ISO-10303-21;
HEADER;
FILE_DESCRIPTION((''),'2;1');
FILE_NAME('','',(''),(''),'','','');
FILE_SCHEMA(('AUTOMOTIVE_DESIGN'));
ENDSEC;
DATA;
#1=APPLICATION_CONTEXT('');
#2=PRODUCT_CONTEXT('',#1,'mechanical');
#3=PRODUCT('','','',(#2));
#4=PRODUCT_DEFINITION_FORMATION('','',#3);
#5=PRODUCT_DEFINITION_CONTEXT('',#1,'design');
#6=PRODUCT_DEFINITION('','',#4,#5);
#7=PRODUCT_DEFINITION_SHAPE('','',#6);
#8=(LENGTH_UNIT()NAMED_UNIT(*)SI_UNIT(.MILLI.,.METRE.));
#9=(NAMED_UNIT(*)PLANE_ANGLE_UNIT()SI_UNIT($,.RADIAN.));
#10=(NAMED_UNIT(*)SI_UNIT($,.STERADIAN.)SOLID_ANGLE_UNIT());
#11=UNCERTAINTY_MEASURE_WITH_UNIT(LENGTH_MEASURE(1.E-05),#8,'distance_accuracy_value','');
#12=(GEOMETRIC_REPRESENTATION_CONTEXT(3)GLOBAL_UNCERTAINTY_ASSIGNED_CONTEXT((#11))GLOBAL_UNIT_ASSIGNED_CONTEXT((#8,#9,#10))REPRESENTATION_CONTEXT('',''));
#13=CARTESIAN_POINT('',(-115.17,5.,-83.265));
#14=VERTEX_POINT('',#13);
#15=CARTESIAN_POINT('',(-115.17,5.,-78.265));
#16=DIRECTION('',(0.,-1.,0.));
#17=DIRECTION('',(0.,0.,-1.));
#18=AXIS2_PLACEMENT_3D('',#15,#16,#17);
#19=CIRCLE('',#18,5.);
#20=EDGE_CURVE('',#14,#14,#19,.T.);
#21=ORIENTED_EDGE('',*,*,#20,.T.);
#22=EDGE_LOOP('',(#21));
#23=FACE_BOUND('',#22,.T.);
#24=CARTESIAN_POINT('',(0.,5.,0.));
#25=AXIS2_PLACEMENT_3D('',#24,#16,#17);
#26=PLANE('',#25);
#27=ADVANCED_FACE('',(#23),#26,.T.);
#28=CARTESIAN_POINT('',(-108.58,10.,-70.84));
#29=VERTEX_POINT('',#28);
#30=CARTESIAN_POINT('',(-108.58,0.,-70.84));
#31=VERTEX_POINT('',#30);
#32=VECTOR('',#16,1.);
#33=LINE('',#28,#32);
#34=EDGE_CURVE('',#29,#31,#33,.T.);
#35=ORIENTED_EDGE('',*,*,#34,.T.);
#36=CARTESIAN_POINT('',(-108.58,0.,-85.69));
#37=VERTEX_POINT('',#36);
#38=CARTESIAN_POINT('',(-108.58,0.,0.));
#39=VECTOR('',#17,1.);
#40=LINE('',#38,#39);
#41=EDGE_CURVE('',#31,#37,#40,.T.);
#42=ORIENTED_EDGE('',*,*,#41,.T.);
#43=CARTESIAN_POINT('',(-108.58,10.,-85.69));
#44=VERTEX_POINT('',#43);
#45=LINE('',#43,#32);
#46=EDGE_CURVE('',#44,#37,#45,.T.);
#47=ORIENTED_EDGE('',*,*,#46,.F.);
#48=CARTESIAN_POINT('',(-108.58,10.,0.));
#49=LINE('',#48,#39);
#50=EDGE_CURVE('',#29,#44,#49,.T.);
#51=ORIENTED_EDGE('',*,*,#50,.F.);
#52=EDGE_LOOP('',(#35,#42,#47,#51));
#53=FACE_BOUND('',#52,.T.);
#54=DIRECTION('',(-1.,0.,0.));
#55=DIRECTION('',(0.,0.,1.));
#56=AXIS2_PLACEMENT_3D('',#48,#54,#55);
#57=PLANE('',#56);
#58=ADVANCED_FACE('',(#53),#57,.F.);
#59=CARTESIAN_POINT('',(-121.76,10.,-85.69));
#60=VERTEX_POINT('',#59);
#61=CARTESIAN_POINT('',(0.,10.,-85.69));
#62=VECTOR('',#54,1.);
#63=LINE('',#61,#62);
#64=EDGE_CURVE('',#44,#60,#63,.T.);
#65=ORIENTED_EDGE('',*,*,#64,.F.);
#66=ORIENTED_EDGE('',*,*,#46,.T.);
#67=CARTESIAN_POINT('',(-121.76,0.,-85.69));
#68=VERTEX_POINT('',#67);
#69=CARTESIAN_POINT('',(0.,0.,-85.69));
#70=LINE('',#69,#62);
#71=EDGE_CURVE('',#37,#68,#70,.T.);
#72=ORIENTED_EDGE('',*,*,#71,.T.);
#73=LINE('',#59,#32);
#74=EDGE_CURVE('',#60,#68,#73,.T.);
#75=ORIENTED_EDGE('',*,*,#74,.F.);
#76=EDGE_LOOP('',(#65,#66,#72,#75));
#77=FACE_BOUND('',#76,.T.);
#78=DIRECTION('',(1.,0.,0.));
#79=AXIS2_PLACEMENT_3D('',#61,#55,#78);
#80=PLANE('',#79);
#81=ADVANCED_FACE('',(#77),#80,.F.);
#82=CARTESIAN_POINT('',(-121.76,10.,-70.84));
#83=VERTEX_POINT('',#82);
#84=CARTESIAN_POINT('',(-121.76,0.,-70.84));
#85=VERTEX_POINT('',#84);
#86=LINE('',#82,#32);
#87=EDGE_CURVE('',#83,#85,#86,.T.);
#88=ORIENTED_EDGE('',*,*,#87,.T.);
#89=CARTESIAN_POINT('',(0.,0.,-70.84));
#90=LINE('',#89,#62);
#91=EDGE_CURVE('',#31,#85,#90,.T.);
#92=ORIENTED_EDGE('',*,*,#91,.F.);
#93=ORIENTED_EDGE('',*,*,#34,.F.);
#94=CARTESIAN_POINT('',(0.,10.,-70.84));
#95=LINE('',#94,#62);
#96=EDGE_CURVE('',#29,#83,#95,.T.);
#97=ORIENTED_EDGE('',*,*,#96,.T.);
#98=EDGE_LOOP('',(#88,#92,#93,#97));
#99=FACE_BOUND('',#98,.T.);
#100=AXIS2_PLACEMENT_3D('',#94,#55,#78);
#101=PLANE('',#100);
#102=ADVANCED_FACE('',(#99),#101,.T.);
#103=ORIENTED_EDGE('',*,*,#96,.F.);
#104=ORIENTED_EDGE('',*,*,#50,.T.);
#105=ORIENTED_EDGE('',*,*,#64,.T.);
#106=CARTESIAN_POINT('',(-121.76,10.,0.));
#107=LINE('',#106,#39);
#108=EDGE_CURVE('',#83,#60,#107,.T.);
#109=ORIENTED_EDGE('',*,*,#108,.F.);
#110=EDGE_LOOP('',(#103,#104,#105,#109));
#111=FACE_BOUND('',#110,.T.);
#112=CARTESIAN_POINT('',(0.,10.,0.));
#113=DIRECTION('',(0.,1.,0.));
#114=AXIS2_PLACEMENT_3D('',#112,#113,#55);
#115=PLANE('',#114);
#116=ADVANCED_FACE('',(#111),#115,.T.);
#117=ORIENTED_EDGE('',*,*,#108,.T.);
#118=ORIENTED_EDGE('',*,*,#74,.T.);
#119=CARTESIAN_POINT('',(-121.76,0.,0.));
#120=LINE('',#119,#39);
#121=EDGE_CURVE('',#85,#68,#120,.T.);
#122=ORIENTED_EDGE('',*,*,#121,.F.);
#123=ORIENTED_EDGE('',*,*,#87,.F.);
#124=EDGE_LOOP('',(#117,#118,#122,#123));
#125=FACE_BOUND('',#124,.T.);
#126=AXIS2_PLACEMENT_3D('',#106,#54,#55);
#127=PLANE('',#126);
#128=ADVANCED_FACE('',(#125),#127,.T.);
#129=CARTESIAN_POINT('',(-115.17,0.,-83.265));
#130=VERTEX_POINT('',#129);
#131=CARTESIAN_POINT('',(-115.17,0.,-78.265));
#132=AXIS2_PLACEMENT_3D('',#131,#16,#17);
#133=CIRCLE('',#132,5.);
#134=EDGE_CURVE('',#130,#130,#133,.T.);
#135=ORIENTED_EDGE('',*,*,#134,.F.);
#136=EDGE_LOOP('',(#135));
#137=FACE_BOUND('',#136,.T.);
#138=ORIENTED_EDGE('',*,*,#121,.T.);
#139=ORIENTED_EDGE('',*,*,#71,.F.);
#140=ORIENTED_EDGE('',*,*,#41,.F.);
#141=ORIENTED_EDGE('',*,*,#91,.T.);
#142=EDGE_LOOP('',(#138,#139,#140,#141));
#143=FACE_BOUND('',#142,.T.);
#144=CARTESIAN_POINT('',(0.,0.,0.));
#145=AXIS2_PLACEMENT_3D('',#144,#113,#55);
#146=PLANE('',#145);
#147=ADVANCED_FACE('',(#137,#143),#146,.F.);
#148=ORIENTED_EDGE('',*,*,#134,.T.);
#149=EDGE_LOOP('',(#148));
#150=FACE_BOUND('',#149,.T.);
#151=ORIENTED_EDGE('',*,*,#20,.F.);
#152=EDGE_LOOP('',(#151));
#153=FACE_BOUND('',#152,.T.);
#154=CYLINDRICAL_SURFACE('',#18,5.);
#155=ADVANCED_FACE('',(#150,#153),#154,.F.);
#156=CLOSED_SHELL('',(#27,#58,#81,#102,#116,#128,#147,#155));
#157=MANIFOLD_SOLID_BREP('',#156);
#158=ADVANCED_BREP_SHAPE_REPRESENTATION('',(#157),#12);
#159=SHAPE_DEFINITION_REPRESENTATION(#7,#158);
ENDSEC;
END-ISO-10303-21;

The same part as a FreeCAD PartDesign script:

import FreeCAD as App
import Part
import Sketcher
from FreeCAD import Vector

doc = App.newDocument("Part")
body = doc.addObject("PartDesign::Body", "Body")

# Sketch on XZ plane
sketch1 = body.newObject("Sketcher::SketchObject", "Sketch")
sketch1.AttachmentSupport = (doc.getObject("XZ_Plane"), [""])
sketch1.MapMode = "FlatFace"
sketch1.addGeometry(Part.LineSegment(Vector(-122, -86, 0), Vector(-122, -71, 0)), False)
sketch1.addGeometry(Part.LineSegment(Vector(-122, -71, 0), Vector(-109, -71, 0)), False)
sketch1.addGeometry(Part.LineSegment(Vector(-109, -71, 0), Vector(-109, -86, 0)), False)
sketch1.addGeometry(Part.LineSegment(Vector(-109, -86, 0), Vector(-122, -86, 0)), False)
sketch1.addConstraint(Sketcher.Constraint("Coincident", 0, 2, 1, 1))
sketch1.addConstraint(Sketcher.Constraint("Coincident", 1, 2, 2, 1))
sketch1.addConstraint(Sketcher.Constraint("Coincident", 2, 2, 3, 1))
sketch1.addConstraint(Sketcher.Constraint("Coincident", 3, 2, 0, 1))
sketch1.addConstraint(Sketcher.Constraint("Vertical", 0))
sketch1.addConstraint(Sketcher.Constraint("Horizontal", 1))
sketch1.addConstraint(Sketcher.Constraint("Vertical", 2))
sketch1.addConstraint(Sketcher.Constraint("Horizontal", 3))
sketch1.addConstraint(Sketcher.Constraint("DistanceX", 1, 1, 1, 2, 13.18))
sketch1.addConstraint(Sketcher.Constraint("DistanceY", 0, 1, 0, 2, 14.85))
sketch1.addConstraint(Sketcher.Constraint("DistanceX", 0, 2, -1, 1, 121.76))
sketch1.addConstraint(Sketcher.Constraint("DistanceY", 0, 2, -1, 1, 70.84))
pad1 = body.newObject("PartDesign::Pad", "Pad")
pad1.Profile = sketch1
pad1.Length = 10
pad1.Reversed = True

# Sketch on XZ plane
sketch2 = body.newObject("Sketcher::SketchObject", "Sketch001")
sketch2.AttachmentSupport = (doc.getObject("XZ_Plane"), [""])
sketch2.MapMode = "FlatFace"
sketch2.addGeometry(Part.Circle(Vector(-115, -78, 0), Vector(0, 0, 1), 5), False)
sketch2.addConstraint(Sketcher.Constraint("Diameter", 0, 10.0))
sketch2.addConstraint(Sketcher.Constraint("DistanceX", 0, 3, -1, 1, 115.17))
sketch2.addConstraint(Sketcher.Constraint("DistanceY", 0, 3, -1, 1, 78.265))
pocket1 = body.newObject("PartDesign::Pocket", "Pocket")
pocket1.Profile = sketch2
pocket1.Length = 5

doc.recompute()
